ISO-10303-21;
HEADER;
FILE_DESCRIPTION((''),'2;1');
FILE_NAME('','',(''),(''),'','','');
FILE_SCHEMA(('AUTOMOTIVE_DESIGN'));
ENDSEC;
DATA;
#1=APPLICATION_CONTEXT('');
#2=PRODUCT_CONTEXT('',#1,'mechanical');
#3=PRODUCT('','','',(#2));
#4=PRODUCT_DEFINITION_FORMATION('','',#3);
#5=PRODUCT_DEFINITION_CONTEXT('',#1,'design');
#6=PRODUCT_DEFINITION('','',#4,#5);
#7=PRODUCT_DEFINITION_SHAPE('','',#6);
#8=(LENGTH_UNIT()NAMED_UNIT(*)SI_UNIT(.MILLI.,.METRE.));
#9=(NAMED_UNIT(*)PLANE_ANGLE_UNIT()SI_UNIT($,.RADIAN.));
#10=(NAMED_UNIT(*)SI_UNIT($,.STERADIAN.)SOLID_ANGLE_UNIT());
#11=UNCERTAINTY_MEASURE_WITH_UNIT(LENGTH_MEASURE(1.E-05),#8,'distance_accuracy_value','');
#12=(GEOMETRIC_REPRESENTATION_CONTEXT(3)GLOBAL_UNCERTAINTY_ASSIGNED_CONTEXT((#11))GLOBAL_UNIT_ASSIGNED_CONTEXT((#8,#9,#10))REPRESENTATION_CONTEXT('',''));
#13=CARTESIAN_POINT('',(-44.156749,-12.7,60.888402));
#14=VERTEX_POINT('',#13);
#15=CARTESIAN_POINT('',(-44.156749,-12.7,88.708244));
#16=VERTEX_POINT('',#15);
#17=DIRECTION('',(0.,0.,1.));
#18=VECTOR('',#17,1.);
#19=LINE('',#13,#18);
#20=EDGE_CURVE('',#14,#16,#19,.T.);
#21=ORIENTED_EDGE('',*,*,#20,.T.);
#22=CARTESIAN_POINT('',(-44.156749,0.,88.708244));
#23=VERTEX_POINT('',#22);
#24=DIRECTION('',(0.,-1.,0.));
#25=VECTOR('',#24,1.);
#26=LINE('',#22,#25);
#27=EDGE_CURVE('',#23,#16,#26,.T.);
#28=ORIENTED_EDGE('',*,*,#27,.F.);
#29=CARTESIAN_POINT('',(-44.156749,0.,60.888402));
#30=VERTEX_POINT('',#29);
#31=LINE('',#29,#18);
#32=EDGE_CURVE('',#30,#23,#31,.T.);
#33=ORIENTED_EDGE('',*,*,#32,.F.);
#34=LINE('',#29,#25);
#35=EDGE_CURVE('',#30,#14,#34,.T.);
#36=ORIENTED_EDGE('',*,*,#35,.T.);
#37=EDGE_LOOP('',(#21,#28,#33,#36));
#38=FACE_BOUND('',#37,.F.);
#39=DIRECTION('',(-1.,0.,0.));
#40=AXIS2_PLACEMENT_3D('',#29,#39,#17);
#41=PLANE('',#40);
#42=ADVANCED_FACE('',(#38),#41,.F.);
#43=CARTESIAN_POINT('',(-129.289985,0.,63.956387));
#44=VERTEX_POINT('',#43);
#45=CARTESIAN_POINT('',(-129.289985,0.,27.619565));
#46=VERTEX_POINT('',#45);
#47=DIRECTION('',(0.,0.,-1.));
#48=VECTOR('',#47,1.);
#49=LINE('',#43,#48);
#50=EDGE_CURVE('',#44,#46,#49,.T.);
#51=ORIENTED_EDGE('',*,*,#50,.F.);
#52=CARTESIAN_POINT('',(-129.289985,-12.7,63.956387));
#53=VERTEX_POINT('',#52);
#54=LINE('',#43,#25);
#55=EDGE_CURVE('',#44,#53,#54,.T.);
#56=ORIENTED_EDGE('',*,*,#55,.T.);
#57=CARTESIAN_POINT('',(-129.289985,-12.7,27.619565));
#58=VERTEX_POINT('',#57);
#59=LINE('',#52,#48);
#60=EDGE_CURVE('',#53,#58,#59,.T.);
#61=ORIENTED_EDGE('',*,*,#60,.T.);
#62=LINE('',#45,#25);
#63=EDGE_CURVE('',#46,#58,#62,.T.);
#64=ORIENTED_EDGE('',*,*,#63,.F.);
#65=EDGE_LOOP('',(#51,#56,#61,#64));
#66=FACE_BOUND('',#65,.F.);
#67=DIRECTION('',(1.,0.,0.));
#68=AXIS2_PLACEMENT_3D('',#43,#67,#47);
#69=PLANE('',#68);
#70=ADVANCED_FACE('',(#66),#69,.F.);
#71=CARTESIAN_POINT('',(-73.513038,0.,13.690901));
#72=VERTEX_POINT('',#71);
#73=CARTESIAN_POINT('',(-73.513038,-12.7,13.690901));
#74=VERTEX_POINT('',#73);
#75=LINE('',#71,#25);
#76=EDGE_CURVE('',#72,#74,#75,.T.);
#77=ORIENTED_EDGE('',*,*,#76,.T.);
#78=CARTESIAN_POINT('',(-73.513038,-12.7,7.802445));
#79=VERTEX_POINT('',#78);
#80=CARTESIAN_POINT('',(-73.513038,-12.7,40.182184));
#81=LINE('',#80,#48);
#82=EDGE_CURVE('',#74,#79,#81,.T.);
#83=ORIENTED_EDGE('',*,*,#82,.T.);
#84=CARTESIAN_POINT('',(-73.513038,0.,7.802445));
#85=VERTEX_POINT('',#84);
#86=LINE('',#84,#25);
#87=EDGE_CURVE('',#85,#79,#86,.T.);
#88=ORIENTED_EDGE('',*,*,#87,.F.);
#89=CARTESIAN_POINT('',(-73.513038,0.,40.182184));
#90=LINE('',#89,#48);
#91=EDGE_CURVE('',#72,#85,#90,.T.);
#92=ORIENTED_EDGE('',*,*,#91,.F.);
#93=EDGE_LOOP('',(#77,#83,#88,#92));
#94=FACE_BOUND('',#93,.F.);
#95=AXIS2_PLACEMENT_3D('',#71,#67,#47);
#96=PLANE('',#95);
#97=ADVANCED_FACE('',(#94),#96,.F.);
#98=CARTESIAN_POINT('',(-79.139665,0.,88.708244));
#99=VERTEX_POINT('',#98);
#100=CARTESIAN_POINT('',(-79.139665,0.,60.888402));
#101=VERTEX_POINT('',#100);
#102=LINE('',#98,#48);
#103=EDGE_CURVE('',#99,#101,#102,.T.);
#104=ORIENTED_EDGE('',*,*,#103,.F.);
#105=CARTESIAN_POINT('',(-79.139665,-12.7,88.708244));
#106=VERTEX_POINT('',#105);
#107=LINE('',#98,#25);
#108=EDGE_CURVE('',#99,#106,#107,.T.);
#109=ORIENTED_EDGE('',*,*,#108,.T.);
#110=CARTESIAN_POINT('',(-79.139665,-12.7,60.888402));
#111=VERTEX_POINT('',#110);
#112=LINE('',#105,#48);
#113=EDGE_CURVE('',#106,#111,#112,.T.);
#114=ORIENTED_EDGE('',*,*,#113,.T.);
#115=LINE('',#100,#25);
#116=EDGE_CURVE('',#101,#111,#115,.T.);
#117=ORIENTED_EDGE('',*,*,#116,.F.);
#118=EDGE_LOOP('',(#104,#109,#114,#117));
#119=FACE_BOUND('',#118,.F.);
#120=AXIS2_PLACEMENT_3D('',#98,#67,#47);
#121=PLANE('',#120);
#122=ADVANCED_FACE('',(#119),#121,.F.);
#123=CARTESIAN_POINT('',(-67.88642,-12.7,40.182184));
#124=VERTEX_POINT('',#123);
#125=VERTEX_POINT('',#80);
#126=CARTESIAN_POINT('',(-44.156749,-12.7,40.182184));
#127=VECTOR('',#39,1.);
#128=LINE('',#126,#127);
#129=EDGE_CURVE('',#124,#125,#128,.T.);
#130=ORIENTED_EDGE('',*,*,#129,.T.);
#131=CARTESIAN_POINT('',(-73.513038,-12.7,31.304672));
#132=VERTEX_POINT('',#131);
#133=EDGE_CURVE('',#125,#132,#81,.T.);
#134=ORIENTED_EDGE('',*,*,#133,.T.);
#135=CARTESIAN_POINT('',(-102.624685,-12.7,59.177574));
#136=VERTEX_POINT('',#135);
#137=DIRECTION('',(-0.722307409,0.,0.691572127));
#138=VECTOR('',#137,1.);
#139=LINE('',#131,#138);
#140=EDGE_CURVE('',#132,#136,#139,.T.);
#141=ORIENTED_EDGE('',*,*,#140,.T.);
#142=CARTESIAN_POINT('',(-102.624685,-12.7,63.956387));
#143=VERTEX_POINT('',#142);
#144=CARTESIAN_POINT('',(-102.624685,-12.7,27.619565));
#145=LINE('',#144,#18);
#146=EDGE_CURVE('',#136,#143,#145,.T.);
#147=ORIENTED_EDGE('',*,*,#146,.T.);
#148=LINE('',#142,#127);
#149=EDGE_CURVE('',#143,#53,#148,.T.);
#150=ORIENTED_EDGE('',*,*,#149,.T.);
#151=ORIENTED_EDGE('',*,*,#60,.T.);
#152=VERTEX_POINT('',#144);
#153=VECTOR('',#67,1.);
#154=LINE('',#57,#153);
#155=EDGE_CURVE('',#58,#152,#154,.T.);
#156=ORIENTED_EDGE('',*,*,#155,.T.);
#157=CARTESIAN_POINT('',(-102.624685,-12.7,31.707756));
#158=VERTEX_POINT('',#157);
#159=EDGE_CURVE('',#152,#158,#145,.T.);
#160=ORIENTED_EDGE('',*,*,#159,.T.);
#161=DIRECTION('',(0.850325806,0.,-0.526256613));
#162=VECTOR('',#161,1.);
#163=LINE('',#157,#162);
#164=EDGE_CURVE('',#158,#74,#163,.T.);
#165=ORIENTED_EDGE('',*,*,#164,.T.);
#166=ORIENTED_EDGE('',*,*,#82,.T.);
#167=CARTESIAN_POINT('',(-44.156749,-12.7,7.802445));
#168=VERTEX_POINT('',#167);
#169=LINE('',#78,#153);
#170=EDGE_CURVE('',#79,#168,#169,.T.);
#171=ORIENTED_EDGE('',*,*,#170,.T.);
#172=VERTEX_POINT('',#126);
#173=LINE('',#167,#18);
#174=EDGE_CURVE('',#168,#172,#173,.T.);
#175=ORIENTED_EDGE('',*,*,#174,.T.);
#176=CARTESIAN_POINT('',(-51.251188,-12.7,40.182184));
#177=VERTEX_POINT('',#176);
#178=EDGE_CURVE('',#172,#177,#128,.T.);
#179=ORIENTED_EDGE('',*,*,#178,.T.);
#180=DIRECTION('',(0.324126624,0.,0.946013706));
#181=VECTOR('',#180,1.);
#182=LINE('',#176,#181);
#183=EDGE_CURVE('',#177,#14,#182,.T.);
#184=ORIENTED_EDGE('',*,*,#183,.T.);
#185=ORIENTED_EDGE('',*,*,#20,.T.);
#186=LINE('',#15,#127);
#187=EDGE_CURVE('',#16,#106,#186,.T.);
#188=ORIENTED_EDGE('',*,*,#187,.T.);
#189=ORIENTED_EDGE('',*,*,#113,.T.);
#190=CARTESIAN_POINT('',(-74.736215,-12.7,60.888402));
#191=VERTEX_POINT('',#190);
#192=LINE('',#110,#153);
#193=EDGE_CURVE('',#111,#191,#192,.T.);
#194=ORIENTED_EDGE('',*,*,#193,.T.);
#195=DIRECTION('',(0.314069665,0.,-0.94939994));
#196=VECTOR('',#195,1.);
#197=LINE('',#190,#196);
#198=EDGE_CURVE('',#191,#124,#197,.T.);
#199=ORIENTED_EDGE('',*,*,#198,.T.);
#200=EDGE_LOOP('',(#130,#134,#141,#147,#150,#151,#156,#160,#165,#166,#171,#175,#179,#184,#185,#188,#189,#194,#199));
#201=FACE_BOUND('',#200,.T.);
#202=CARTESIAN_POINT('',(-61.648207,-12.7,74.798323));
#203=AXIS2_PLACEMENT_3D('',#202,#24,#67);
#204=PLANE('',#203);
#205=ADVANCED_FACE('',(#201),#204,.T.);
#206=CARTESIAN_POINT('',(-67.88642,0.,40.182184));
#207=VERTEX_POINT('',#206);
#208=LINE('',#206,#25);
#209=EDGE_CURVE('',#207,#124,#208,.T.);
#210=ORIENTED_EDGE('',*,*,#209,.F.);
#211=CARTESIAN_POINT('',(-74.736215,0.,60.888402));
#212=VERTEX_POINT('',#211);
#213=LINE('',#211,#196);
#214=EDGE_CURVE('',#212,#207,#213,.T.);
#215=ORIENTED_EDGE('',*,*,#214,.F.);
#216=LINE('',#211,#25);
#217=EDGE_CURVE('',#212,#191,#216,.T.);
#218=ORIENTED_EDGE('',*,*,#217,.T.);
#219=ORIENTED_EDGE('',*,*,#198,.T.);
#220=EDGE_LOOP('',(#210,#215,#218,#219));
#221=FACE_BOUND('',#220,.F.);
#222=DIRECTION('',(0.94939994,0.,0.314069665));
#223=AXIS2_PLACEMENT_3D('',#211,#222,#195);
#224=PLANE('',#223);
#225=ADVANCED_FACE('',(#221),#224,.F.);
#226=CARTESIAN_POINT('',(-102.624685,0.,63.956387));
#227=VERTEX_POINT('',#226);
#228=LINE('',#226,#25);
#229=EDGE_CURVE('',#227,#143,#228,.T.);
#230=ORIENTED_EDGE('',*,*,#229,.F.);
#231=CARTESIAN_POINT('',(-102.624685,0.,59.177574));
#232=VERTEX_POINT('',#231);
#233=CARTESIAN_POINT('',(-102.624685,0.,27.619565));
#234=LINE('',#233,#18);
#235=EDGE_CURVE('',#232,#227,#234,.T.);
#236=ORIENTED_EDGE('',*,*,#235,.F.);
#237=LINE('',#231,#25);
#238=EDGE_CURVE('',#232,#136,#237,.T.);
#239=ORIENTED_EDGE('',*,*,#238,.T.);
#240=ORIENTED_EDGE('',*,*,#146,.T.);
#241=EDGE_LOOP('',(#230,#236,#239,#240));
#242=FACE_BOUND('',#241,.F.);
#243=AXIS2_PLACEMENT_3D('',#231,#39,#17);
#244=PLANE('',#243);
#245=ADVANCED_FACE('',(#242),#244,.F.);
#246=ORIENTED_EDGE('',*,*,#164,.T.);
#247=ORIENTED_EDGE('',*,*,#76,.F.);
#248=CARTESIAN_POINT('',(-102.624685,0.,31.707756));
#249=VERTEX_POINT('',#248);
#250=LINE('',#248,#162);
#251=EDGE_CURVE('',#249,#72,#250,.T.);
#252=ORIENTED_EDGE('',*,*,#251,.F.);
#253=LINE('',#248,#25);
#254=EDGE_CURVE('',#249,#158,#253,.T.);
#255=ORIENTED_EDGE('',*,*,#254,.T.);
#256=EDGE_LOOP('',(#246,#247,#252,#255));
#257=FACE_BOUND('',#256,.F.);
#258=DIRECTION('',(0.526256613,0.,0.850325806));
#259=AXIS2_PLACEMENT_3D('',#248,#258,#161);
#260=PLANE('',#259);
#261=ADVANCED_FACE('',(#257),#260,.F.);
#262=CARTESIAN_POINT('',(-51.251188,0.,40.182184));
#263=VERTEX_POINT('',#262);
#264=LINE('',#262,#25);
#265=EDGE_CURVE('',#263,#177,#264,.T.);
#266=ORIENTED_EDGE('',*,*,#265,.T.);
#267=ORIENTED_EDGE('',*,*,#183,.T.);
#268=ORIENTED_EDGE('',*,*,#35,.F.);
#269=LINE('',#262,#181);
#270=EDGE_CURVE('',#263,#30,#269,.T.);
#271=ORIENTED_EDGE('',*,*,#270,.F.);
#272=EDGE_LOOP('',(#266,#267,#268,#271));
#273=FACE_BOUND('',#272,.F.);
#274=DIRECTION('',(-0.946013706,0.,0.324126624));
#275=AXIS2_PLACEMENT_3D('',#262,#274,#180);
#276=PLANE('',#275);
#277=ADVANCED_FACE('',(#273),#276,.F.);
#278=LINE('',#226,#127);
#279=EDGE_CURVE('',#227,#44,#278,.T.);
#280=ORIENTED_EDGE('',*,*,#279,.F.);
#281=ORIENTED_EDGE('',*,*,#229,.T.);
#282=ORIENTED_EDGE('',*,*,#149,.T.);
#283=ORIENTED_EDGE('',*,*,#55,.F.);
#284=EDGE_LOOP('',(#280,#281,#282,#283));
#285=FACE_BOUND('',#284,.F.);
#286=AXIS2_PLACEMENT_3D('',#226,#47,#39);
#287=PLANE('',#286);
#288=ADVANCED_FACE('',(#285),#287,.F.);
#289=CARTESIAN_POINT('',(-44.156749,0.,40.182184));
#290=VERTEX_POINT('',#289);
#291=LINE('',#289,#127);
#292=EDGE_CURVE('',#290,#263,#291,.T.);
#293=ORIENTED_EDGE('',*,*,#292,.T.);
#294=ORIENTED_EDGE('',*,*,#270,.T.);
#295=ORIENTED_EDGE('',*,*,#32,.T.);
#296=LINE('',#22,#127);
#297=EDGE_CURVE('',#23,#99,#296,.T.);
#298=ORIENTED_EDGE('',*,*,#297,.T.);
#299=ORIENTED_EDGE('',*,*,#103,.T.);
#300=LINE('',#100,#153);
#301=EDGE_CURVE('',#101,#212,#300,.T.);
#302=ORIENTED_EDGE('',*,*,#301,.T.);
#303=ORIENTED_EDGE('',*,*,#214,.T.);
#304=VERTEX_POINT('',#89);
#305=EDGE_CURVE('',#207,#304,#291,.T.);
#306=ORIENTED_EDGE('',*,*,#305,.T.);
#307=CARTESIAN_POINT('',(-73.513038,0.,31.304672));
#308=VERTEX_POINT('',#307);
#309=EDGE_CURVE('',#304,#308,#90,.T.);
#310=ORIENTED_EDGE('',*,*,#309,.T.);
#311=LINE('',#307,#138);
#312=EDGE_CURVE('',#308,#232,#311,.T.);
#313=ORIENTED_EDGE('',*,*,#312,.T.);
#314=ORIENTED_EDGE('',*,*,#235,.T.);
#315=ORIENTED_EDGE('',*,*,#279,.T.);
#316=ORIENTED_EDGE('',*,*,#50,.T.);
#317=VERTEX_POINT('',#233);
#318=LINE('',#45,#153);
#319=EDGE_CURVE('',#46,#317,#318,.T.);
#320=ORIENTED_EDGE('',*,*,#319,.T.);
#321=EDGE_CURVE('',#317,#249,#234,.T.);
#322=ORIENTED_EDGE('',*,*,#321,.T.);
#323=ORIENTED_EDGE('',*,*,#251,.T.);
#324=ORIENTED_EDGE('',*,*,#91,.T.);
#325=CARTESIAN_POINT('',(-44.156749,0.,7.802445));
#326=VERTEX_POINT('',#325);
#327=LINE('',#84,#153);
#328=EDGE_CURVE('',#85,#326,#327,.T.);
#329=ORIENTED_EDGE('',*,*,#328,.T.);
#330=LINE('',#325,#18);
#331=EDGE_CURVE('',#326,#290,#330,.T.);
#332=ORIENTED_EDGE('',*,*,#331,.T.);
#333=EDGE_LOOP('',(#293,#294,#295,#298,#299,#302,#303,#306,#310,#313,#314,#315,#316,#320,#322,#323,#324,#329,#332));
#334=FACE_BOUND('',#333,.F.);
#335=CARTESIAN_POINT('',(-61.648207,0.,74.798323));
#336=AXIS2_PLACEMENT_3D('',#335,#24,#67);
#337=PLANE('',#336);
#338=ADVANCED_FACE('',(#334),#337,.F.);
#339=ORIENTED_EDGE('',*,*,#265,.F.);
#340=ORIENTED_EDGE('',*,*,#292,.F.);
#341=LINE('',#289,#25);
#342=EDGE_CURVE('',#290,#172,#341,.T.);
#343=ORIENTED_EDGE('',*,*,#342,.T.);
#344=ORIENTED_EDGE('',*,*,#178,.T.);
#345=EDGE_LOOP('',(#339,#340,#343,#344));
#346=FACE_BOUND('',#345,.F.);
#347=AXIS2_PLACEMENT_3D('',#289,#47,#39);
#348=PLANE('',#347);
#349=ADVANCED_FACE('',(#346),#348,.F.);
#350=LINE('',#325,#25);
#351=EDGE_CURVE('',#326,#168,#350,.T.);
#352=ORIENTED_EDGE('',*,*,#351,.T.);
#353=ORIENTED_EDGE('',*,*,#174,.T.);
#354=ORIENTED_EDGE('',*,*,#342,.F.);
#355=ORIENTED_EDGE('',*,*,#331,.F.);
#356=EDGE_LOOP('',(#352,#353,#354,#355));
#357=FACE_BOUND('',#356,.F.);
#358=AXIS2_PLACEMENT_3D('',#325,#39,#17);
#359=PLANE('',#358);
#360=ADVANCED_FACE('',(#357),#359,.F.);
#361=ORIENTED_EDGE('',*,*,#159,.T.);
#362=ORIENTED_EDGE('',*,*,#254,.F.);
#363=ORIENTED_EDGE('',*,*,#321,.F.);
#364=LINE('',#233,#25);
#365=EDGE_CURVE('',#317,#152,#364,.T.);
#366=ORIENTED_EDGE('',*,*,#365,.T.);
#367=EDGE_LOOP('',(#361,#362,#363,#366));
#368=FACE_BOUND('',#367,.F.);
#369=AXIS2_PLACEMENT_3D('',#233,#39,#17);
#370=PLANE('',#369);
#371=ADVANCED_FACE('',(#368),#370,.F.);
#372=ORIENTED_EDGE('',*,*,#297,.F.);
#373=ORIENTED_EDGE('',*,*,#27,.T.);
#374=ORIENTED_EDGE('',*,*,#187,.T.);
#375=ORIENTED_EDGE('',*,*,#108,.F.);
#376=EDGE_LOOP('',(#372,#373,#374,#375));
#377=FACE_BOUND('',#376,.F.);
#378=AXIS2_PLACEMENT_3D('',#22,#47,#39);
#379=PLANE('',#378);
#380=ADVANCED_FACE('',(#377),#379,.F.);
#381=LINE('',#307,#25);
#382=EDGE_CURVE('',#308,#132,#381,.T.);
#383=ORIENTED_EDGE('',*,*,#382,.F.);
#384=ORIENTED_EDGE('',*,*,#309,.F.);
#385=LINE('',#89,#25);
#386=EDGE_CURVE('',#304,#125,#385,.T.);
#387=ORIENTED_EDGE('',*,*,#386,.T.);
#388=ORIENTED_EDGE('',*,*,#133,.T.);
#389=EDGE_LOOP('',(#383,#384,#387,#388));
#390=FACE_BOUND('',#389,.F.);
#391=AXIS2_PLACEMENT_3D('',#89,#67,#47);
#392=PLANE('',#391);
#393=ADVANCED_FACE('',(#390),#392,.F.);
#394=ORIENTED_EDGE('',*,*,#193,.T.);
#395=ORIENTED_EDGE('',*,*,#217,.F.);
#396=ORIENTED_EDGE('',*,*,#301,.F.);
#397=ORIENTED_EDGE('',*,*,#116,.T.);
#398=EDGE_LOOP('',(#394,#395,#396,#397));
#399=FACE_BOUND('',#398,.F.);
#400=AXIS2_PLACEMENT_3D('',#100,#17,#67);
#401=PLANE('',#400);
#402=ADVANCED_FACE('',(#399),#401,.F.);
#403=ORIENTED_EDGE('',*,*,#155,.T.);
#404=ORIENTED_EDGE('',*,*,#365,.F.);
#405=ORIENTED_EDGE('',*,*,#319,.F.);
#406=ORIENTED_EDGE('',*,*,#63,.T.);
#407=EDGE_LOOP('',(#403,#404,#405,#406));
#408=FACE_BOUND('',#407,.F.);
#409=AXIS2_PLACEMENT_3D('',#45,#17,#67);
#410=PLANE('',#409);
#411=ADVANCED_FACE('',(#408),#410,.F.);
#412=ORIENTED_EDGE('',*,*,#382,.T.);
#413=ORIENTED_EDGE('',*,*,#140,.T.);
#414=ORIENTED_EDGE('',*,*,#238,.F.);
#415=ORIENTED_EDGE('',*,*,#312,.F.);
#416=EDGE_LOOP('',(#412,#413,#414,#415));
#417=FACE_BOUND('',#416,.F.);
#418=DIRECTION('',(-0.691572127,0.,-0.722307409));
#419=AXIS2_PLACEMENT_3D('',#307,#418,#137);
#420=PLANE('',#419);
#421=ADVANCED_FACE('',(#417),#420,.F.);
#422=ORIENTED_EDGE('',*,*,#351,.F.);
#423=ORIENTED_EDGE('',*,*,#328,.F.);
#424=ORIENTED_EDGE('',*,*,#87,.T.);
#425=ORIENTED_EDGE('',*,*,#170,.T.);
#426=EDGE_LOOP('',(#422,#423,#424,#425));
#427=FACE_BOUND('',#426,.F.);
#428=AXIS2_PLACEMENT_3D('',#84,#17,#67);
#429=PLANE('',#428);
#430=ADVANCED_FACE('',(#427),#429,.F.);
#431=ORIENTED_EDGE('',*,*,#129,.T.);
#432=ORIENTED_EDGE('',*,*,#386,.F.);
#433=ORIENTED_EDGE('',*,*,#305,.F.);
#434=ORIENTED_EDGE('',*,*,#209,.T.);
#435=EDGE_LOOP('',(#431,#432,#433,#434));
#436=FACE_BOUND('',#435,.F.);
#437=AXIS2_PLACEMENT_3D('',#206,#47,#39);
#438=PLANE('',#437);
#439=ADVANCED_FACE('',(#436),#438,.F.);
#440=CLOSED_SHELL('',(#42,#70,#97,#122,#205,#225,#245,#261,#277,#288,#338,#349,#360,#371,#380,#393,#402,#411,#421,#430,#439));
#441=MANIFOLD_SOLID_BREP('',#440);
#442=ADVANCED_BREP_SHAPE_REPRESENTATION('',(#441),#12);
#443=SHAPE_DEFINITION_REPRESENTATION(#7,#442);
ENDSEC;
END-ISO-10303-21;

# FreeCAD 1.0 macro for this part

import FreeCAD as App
import Part
import Sketcher
from FreeCAD import Vector
Q = App.Units.Quantity


def add_polygon(sketch, points):
    """Adds a closed chain of lines whose ends are joined by coincident constraints."""
    first, n = sketch.GeometryCount, len(points)
    for a, b in zip(points, points[1:] + points[:1]):
        sketch.addGeometry(Part.LineSegment(App.Vector(*a, 0), App.Vector(*b, 0)), False)
    for i in range(n):
        sketch.addConstraint(Sketcher.Constraint("Coincident", first + i, 2, first + (i + 1) % n, 1))

doc = App.newDocument("Part")
body = doc.addObject("PartDesign::Body", "Body")

# Sketch on XZ plane
sketch1 = doc.addObject("Sketcher::SketchObject", "Sketch")
body.addObject(sketch1)
sketch1.AttachmentSupport = (doc.XZ_Plane, [""])
sketch1.MapMode = "FlatFace"
add_polygon(sketch1, [(-79.1, 60.9), (-74.7, 60.9), (-67.9, 40.2), (-73.5, 40.2), (-73.5, 31.3), (-102.6, 59.2), (-102.6, 64), (-129.3, 64), (-129.3, 27.6), (-102.6, 27.6), (-102.6, 31.7), (-73.5, 13.7), (-73.5, 7.8), (-44.2, 7.8), (-44.2, 40.2), (-51.3, 40.2), (-44.2, 60.9), (-44.2, 88.7), (-79.1, 88.7)])  # lines 0-18
sketch1.addConstraint(Sketcher.Constraint("Horizontal", 0))
sketch1.addConstraint(Sketcher.Constraint("Horizontal", 2))
sketch1.addConstraint(Sketcher.Constraint("Vertical", 3))
sketch1.addConstraint(Sketcher.Constraint("Vertical", 5))
sketch1.addConstraint(Sketcher.Constraint("Horizontal", 6))
sketch1.addConstraint(Sketcher.Constraint("Vertical", 7))
sketch1.addConstraint(Sketcher.Constraint("Horizontal", 8))
sketch1.addConstraint(Sketcher.Constraint("Vertical", 9))
sketch1.addConstraint(Sketcher.Constraint("Vertical", 11))
sketch1.addConstraint(Sketcher.Constraint("Horizontal", 12))
sketch1.addConstraint(Sketcher.Constraint("Vertical", 13))
sketch1.addConstraint(Sketcher.Constraint("Horizontal", 14))
sketch1.addConstraint(Sketcher.Constraint("Vertical", 16))
sketch1.addConstraint(Sketcher.Constraint("Horizontal", 17))
sketch1.addConstraint(Sketcher.Constraint("Vertical", 18))
sketch1.addConstraint(Sketcher.Constraint("Horizontal", 2, 2, 13, 2))
sketch1.addConstraint(Sketcher.Constraint("Horizontal", 0, 2, 15, 2))
sketch1.addConstraint(Sketcher.Constraint("Vertical", 5, 2, 8, 2))
sketch1.addConstraint(Sketcher.Constraint("Vertical", 3, 2, 10, 2))
sketch1.addConstraint(Sketcher.Constraint("Vertical", 13, 2, 15, 2))
sketch1.addConstraint(Sketcher.Constraint("DistanceX", 6, 2, 6, 1, Q("26.6653 mm")))
sketch1.addConstraint(Sketcher.Constraint("DistanceX", 0, 1, 0, 2, Q("4.40345 mm")))
sketch1.addConstraint(Sketcher.Constraint("DistanceX", 12, 1, 12, 2, Q("29.356289 mm")))
sketch1.addConstraint(Sketcher.Constraint("DistanceX", 14, 2, 14, 1, Q("7.094439 mm")))
sketch1.addConstraint(Sketcher.Constraint("DistanceY", 7, 2, 7, 1, Q("36.336822 mm")))
sketch1.addConstraint(Sketcher.Constraint("DistanceY", 9, 1, 9, 2, Q("4.088191 mm")))
sketch1.addConstraint(Sketcher.Constraint("DistanceY", 13, 1, 13, 2, Q("32.379739 mm")))
sketch1.addConstraint(Sketcher.Constraint("DistanceY", 16, 1, 16, 2, Q("27.819842 mm")))
sketch1.addConstraint(Sketcher.Constraint("DistanceY", -1, 1, 10, 2, Q("13.690901 mm")))
sketch1.addConstraint(Sketcher.Constraint("DistanceY", 3, 2, 4, 2, Q("27.872902 mm")))
sketch1.addConstraint(Sketcher.Constraint("Distance", 4, Q("40.30368 mm")))
sketch1.addConstraint(Sketcher.Constraint("DistanceX", 2, 2, 2, 1, Q("5.626618 mm")))
sketch1.addConstraint(Sketcher.Constraint("DistanceX", 17, 2, 17, 1, Q("34.982916 mm")))
sketch1.addConstraint(Sketcher.Constraint("DistanceY", 3, 2, 3, 1, Q("8.877512 mm")))
sketch1.addConstraint(Sketcher.Constraint("DistanceY", 5, 1, 5, 2, Q("4.778813 mm")))
sketch1.addConstraint(Sketcher.Constraint("DistanceY", 11, 2, 11, 1, Q("5.888456 mm")))
sketch1.addConstraint(Sketcher.Constraint("DistanceX", 1, 2, -1, 1, Q("67.88642 mm")))
sketch1.addConstraint(Sketcher.Constraint("DistanceY", 1, 2, 0, 2, Q("20.706218 mm")))
pad1 = doc.addObject("PartDesign::Pad", "Pad")
body.addObject(pad1)
pad1.Profile = sketch1
pad1.Length = Q("0.5 in")

doc.recompute()
